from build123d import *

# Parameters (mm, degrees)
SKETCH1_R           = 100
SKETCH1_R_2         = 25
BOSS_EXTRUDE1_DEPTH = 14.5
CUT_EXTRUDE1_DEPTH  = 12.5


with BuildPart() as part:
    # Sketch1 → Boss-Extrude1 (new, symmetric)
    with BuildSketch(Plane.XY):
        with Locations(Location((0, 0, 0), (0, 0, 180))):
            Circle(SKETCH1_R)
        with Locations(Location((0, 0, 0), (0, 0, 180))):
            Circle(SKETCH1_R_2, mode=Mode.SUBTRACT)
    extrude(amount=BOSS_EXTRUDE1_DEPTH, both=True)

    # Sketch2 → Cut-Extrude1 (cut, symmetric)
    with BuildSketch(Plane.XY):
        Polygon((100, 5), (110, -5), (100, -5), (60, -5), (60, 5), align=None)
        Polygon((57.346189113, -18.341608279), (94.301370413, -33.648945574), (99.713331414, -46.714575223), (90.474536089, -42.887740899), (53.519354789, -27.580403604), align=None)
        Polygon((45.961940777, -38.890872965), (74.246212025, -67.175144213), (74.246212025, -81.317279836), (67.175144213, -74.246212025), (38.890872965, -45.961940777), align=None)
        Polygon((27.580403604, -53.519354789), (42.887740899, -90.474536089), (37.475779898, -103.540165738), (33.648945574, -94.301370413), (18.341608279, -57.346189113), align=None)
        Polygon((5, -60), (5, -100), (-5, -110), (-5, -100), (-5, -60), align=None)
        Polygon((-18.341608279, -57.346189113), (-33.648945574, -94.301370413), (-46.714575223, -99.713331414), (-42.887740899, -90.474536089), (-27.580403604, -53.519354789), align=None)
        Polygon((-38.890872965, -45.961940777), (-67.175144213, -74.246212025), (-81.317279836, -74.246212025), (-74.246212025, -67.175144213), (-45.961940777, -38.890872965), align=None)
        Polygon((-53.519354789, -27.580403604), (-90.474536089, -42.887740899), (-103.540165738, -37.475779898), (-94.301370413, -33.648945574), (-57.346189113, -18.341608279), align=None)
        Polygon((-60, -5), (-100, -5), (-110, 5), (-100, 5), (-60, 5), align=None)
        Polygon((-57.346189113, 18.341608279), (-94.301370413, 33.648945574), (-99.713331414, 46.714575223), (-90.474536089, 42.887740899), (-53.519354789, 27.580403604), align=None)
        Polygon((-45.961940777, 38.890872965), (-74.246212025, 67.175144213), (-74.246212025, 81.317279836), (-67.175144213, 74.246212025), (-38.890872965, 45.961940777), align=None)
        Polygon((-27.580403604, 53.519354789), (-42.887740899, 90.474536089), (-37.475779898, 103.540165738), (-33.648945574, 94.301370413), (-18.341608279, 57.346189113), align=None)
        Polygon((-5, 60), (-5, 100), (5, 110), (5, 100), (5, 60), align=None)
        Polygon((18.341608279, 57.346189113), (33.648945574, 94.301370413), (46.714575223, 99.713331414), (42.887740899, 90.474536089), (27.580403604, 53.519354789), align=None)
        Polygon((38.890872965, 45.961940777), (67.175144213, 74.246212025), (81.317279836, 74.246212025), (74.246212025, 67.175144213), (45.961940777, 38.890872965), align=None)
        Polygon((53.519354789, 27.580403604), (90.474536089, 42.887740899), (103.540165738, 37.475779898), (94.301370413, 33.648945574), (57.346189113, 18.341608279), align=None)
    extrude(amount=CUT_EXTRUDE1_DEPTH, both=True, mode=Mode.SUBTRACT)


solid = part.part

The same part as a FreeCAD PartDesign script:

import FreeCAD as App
import Part
import Sketcher
from FreeCAD import Vector
Q = App.Units.Quantity

doc = App.newDocument("Part")
body = doc.addObject("PartDesign::Body", "Body")

sketch1 = body.newObject("Sketcher::SketchObject", "Sketch")
sketch1.AttachmentSupport = (doc.getObject("XY_Plane"), [""])
sketch1.MapMode = "FlatFace"
sketch1.addGeometry(Part.Circle(Vector(0, 0, 0), Vector(0, 0, 1), 100), False)
sketch1.addGeometry(Part.Circle(Vector(0, 0, 0), Vector(0, 0, 1), 25), False)
sketch1.addConstraint(Sketcher.Constraint("Coincident", 0, 3, -1, 1))
sketch1.addConstraint(Sketcher.Constraint("Coincident", 1, 3, -1, 1))
sketch1.addConstraint(Sketcher.Constraint("Diameter", 0, Q("200 mm")))
sketch1.addConstraint(Sketcher.Constraint("Diameter", 1, Q("50 mm")))
pad1 = body.newObject("PartDesign::Pad", "Pad")
pad1.Profile = sketch1
pad1.Length = 29
pad1.Midplane = True

sketch2 = body.newObject("Sketcher::SketchObject", "Sketch001")
sketch2.AttachmentSupport = (doc.getObject("XY_Plane"), [""])
sketch2.MapMode = "FlatFace"
sketch2.addGeometry(Part.LineSegment(Vector(110, -5, 0), Vector(100, 5, 0)), False)
sketch2.addGeometry(Part.LineSegment(Vector(100, 5, 0), Vector(60, 5, 0)), False)
sketch2.addGeometry(Part.LineSegment(Vector(60, 5, 0), Vector(60, -5, 0)), False)
sketch2.addGeometry(Part.LineSegment(Vector(60, -5, 0), Vector(110, -5, 0)), False)
sketch2.addGeometry(Part.LineSegment(Vector(94, -34, 0), Vector(57, -18, 0)), False)
sketch2.addGeometry(Part.LineSegment(Vector(57, -18, 0), Vector(54, -28, 0)), False)
sketch2.addGeometry(Part.LineSegment(Vector(54, -28, 0), Vector(90, -43, 0)), False)
sketch2.addGeometry(Part.LineSegment(Vector(90, -43, 0), Vector(100, -47, 0)), False)
sketch2.addGeometry(Part.LineSegment(Vector(100, -47, 0), Vector(94, -34, 0)), False)
sketch2.addGeometry(Part.LineSegment(Vector(74, -67, 0), Vector(46, -39, 0)), False)
sketch2.addGeometry(Part.LineSegment(Vector(46, -39, 0), Vector(39, -46, 0)), False)
sketch2.addGeometry(Part.LineSegment(Vector(39, -46, 0), Vector(67, -74, 0)), False)
sketch2.addGeometry(Part.LineSegment(Vector(67, -74, 0), Vector(74, -81, 0)), False)
sketch2.addGeometry(Part.LineSegment(Vector(74, -81, 0), Vector(74, -67, 0)), False)
sketch2.addGeometry(Part.LineSegment(Vector(43, -90, 0), Vector(28, -54, 0)), False)
sketch2.addGeometry(Part.LineSegment(Vector(28, -54, 0), Vector(18, -57, 0)), False)
sketch2.addGeometry(Part.LineSegment(Vector(18, -57, 0), Vector(34, -94, 0)), False)
sketch2.addGeometry(Part.LineSegment(Vector(34, -94, 0), Vector(37, -104, 0)), False)
sketch2.addGeometry(Part.LineSegment(Vector(37, -104, 0), Vector(43, -90, 0)), False)
sketch2.addGeometry(Part.LineSegment(Vector(5, -100, 0), Vector(5, -60, 0)), False)
sketch2.addGeometry(Part.LineSegment(Vector(5, -60, 0), Vector(-5, -60, 0)), False)
sketch2.addGeometry(Part.LineSegment(Vector(-5, -60, 0), Vector(-5, -110, 0)), False)
sketch2.addGeometry(Part.LineSegment(Vector(-5, -110, 0), Vector(5, -100, 0)), False)
sketch2.addGeometry(Part.LineSegment(Vector(-34, -94, 0), Vector(-18, -57, 0)), False)
sketch2.addGeometry(Part.LineSegment(Vector(-18, -57, 0), Vector(-28, -54, 0)), False)
sketch2.addGeometry(Part.LineSegment(Vector(-28, -54, 0), Vector(-43, -90, 0)), False)
sketch2.addGeometry(Part.LineSegment(Vector(-43, -90, 0), Vector(-47, -100, 0)), False)
sketch2.addGeometry(Part.LineSegment(Vector(-47, -100, 0), Vector(-34, -94, 0)), False)
sketch2.addGeometry(Part.LineSegment(Vector(-67, -74, 0), Vector(-39, -46, 0)), False)
sketch2.addGeometry(Part.LineSegment(Vector(-39, -46, 0), Vector(-46, -39, 0)), False)
sketch2.addGeometry(Part.LineSegment(Vector(-46, -39, 0), Vector(-74, -67, 0)), False)
sketch2.addGeometry(Part.LineSegment(Vector(-74, -67, 0), Vector(-81, -74, 0)), False)
sketch2.addGeometry(Part.LineSegment(Vector(-81, -74, 0), Vector(-67, -74, 0)), False)
sketch2.addGeometry(Part.LineSegment(Vector(-90, -43, 0), Vector(-54, -28, 0)), False)
sketch2.addGeometry(Part.LineSegment(Vector(-54, -28, 0), Vector(-57, -18, 0)), False)
sketch2.addGeometry(Part.LineSegment(Vector(-57, -18, 0), Vector(-94, -34, 0)), False)
sketch2.addGeometry(Part.LineSegment(Vector(-94, -34, 0), Vector(-104, -37, 0)), False)
sketch2.addGeometry(Part.LineSegment(Vector(-104, -37, 0), Vector(-90, -43, 0)), False)
sketch2.addGeometry(Part.LineSegment(Vector(-100, -5, 0), Vector(-60, -5, 0)), False)
sketch2.addGeometry(Part.LineSegment(Vector(-60, -5, 0), Vector(-60, 5, 0)), False)
sketch2.addGeometry(Part.LineSegment(Vector(-60, 5, 0), Vector(-110, 5, 0)), False)
sketch2.addGeometry(Part.LineSegment(Vector(-110, 5, 0), Vector(-100, -5, 0)), False)
sketch2.addGeometry(Part.LineSegment(Vector(-94, 34, 0), Vector(-57, 18, 0)), False)
sketch2.addGeometry(Part.LineSegment(Vector(-57, 18, 0), Vector(-54, 28, 0)), False)
sketch2.addGeometry(Part.LineSegment(Vector(-54, 28, 0), Vector(-90, 43, 0)), False)
sketch2.addGeometry(Part.LineSegment(Vector(-90, 43, 0), Vector(-100, 47, 0)), False)
sketch2.addGeometry(Part.LineSegment(Vector(-100, 47, 0), Vector(-94, 34, 0)), False)
sketch2.addGeometry(Part.LineSegment(Vector(-74, 67, 0), Vector(-46, 39, 0)), False)
sketch2.addGeometry(Part.LineSegment(Vector(-46, 39, 0), Vector(-39, 46, 0)), False)
sketch2.addGeometry(Part.LineSegment(Vector(-39, 46, 0), Vector(-67, 74, 0)), False)
sketch2.addGeometry(Part.LineSegment(Vector(-67, 74, 0), Vector(-74, 81, 0)), False)
sketch2.addGeometry(Part.LineSegment(Vector(-74, 81, 0), Vector(-74, 67, 0)), False)
sketch2.addGeometry(Part.LineSegment(Vector(-43, 90, 0), Vector(-28, 54, 0)), False)
sketch2.addGeometry(Part.LineSegment(Vector(-28, 54, 0), Vector(-18, 57, 0)), False)
sketch2.addGeometry(Part.LineSegment(Vector(-18, 57, 0), Vector(-34, 94, 0)), False)
sketch2.addGeometry(Part.LineSegment(Vector(-34, 94, 0), Vector(-37, 104, 0)), False)
sketch2.addGeometry(Part.LineSegment(Vector(-37, 104, 0), Vector(-43, 90, 0)), False)
sketch2.addGeometry(Part.LineSegment(Vector(-5, 100, 0), Vector(-5, 60, 0)), False)
sketch2.addGeometry(Part.LineSegment(Vector(-5, 60, 0), Vector(5, 60, 0)), False)
sketch2.addGeometry(Part.LineSegment(Vector(5, 60, 0), Vector(5, 110, 0)), False)
sketch2.addGeometry(Part.LineSegment(Vector(5, 110, 0), Vector(-5, 100, 0)), False)
sketch2.addGeometry(Part.LineSegment(Vector(34, 94, 0), Vector(18, 57, 0)), False)
sketch2.addGeometry(Part.LineSegment(Vector(18, 57, 0), Vector(28, 54, 0)), False)
sketch2.addGeometry(Part.LineSegment(Vector(28, 54, 0), Vector(43, 90, 0)), False)
sketch2.addGeometry(Part.LineSegment(Vector(43, 90, 0), Vector(47, 100, 0)), False)
sketch2.addGeometry(Part.LineSegment(Vector(47, 100, 0), Vector(34, 94, 0)), False)
sketch2.addGeometry(Part.LineSegment(Vector(67, 74, 0), Vector(39, 46, 0)), False)
sketch2.addGeometry(Part.LineSegment(Vector(39, 46, 0), Vector(46, 39, 0)), False)
sketch2.addGeometry(Part.LineSegment(Vector(46, 39, 0), Vector(74, 67, 0)), False)
sketch2.addGeometry(Part.LineSegment(Vector(74, 67, 0), Vector(81, 74, 0)), False)
sketch2.addGeometry(Part.LineSegment(Vector(81, 74, 0), Vector(67, 74, 0)), False)
sketch2.addGeometry(Part.LineSegment(Vector(90, 43, 0), Vector(54, 28, 0)), False)
sketch2.addGeometry(Part.LineSegment(Vector(54, 28, 0), Vector(57, 18, 0)), False)
sketch2.addGeometry(Part.LineSegment(Vector(57, 18, 0), Vector(94, 34, 0)), False)
sketch2.addGeometry(Part.LineSegment(Vector(94, 34, 0), Vector(104, 37, 0)), False)
sketch2.addGeometry(Part.LineSegment(Vector(104, 37, 0), Vector(90, 43, 0)), False)
sketch2.addConstraint(Sketcher.Constraint("Coincident", 0, 2, 1, 1))
sketch2.addConstraint(Sketcher.Constraint("Coincident", 1, 2, 2, 1))
sketch2.addConstraint(Sketcher.Constraint("Coincident", 2, 2, 3, 1))
sketch2.addConstraint(Sketcher.Constraint("Coincident", 3, 2, 0, 1))
sketch2.addConstraint(Sketcher.Constraint("Coincident", 4, 2, 5, 1))
sketch2.addConstraint(Sketcher.Constraint("Coincident", 5, 2, 6, 1))
sketch2.addConstraint(Sketcher.Constraint("Coincident", 6, 2, 7, 1))
sketch2.addConstraint(Sketcher.Constraint("Coincident", 7, 2, 8, 1))
sketch2.addConstraint(Sketcher.Constraint("Coincident", 8, 2, 4, 1))
sketch2.addConstraint(Sketcher.Constraint("Coincident", 9, 2, 10, 1))
sketch2.addConstraint(Sketcher.Constraint("Coincident", 10, 2, 11, 1))
sketch2.addConstraint(Sketcher.Constraint("Coincident", 11, 2, 12, 1))
sketch2.addConstraint(Sketcher.Constraint("Coincident", 12, 2, 13, 1))
sketch2.addConstraint(Sketcher.Constraint("Coincident", 13, 2, 9, 1))
sketch2.addConstraint(Sketcher.Constraint("Coincident", 14, 2, 15, 1))
sketch2.addConstraint(Sketcher.Constraint("Coincident", 15, 2, 16, 1))
sketch2.addConstraint(Sketcher.Constraint("Coincident", 16, 2, 17, 1))
sketch2.addConstraint(Sketcher.Constraint("Coincident", 17, 2, 18, 1))
sketch2.addConstraint(Sketcher.Constraint("Coincident", 18, 2, 14, 1))
sketch2.addConstraint(Sketcher.Constraint("Coincident", 19, 2, 20, 1))
sketch2.addConstraint(Sketcher.Constraint("Coincident", 20, 2, 21, 1))
sketch2.addConstraint(Sketcher.Constraint("Coincident", 21, 2, 22, 1))
sketch2.addConstraint(Sketcher.Constraint("Coincident", 22, 2, 19, 1))
sketch2.addConstraint(Sketcher.Constraint("Coincident", 23, 2, 24, 1))
sketch2.addConstraint(Sketcher.Constraint("Coincident", 24, 2, 25, 1))
sketch2.addConstraint(Sketcher.Constraint("Coincident", 25, 2, 26, 1))
sketch2.addConstraint(Sketcher.Constraint("Coincident", 26, 2, 27, 1))
sketch2.addConstraint(Sketcher.Constraint("Coincident", 27, 2, 23, 1))
sketch2.addConstraint(Sketcher.Constraint("Coincident", 28, 2, 29, 1))
sketch2.addConstraint(Sketcher.Constraint("Coincident", 29, 2, 30, 1))
sketch2.addConstraint(Sketcher.Constraint("Coincident", 30, 2, 31, 1))
sketch2.addConstraint(Sketcher.Constraint("Coincident", 31, 2, 32, 1))
sketch2.addConstraint(Sketcher.Constraint("Coincident", 32, 2, 28, 1))
sketch2.addConstraint(Sketcher.Constraint("Coincident", 33, 2, 34, 1))
sketch2.addConstraint(Sketcher.Constraint("Coincident", 34, 2, 35, 1))
sketch2.addConstraint(Sketcher.Constraint("Coincident", 35, 2, 36, 1))
sketch2.addConstraint(Sketcher.Constraint("Coincident", 36, 2, 37, 1))
sketch2.addConstraint(Sketcher.Constraint("Coincident", 37, 2, 33, 1))
sketch2.addConstraint(Sketcher.Constraint("Coincident", 38, 2, 39, 1))
sketch2.addConstraint(Sketcher.Constraint("Coincident", 39, 2, 40, 1))
sketch2.addConstraint(Sketcher.Constraint("Coincident", 40, 2, 41, 1))
sketch2.addConstraint(Sketcher.Constraint("Coincident", 41, 2, 38, 1))
sketch2.addConstraint(Sketcher.Constraint("Coincident", 42, 2, 43, 1))
sketch2.addConstraint(Sketcher.Constraint("Coincident", 43, 2, 44, 1))
sketch2.addConstraint(Sketcher.Constraint("Coincident", 44, 2, 45, 1))
sketch2.addConstraint(Sketcher.Constraint("Coincident", 45, 2, 46, 1))
sketch2.addConstraint(Sketcher.Constraint("Coincident", 46, 2, 42, 1))
sketch2.addConstraint(Sketcher.Constraint("Coincident", 47, 2, 48, 1))
sketch2.addConstraint(Sketcher.Constraint("Coincident", 48, 2, 49, 1))
sketch2.addConstraint(Sketcher.Constraint("Coincident", 49, 2, 50, 1))
sketch2.addConstraint(Sketcher.Constraint("Coincident", 50, 2, 51, 1))
sketch2.addConstraint(Sketcher.Constraint("Coincident", 51, 2, 47, 1))
sketch2.addConstraint(Sketcher.Constraint("Coincident", 52, 2, 53, 1))
sketch2.addConstraint(Sketcher.Constraint("Coincident", 53, 2, 54, 1))
sketch2.addConstraint(Sketcher.Constraint("Coincident", 54, 2, 55, 1))
sketch2.addConstraint(Sketcher.Constraint("Coincident", 55, 2, 56, 1))
sketch2.addConstraint(Sketcher.Constraint("Coincident", 56, 2, 52, 1))
sketch2.addConstraint(Sketcher.Constraint("Coincident", 57, 2, 58, 1))
sketch2.addConstraint(Sketcher.Constraint("Coincident", 58, 2, 59, 1))
sketch2.addConstraint(Sketcher.Constraint("Coincident", 59, 2, 60, 1))
sketch2.addConstraint(Sketcher.Constraint("Coincident", 60, 2, 57, 1))
sketch2.addConstraint(Sketcher.Constraint("Coincident", 61, 2, 62, 1))
sketch2.addConstraint(Sketcher.Constraint("Coincident", 62, 2, 63, 1))
sketch2.addConstraint(Sketcher.Constraint("Coincident", 63, 2, 64, 1))
sketch2.addConstraint(Sketcher.Constraint("Coincident", 64, 2, 65, 1))
sketch2.addConstraint(Sketcher.Constraint("Coincident", 65, 2, 61, 1))
sketch2.addConstraint(Sketcher.Constraint("Coincident", 66, 2, 67, 1))
sketch2.addConstraint(Sketcher.Constraint("Coincident", 67, 2, 68, 1))
sketch2.addConstraint(Sketcher.Constraint("Coincident", 68, 2, 69, 1))
sketch2.addConstraint(Sketcher.Constraint("Coincident", 69, 2, 70, 1))
sketch2.addConstraint(Sketcher.Constraint("Coincident", 70, 2, 66, 1))
sketch2.addConstraint(Sketcher.Constraint("Coincident", 71, 2, 72, 1))
sketch2.addConstraint(Sketcher.Constraint("Coincident", 72, 2, 73, 1))
sketch2.addConstraint(Sketcher.Constraint("Coincident", 73, 2, 74, 1))
sketch2.addConstraint(Sketcher.Constraint("Coincident", 74, 2, 75, 1))
sketch2.addConstraint(Sketcher.Constraint("Coincident", 75, 2, 71, 1))
sketch2.addConstraint(Sketcher.Constraint("Horizontal", 1))
sketch2.addConstraint(Sketcher.Constraint("Vertical", 2))
sketch2.addConstraint(Sketcher.Constraint("Horizontal", 3))
sketch2.addConstraint(Sketcher.Constraint("Vertical", 13))
sketch2.addConstraint(Sketcher.Constraint("Vertical", 19))
sketch2.addConstraint(Sketcher.Constraint("Horizontal", 20))
sketch2.addConstraint(Sketcher.Constraint("Vertical", 21))
sketch2.addConstraint(Sketcher.Constraint("Horizontal", 32))
sketch2.addConstraint(Sketcher.Constraint("Horizontal", 38))
sketch2.addConstraint(Sketcher.Constraint("Vertical", 39))
sketch2.addConstraint(Sketcher.Constraint("Horizontal", 40))
sketch2.addConstraint(Sketcher.Constraint("Vertical", 51))
sketch2.addConstraint(Sketcher.Constraint("Vertical", 57))
sketch2.addConstraint(Sketcher.Constraint("Horizontal", 58))
sketch2.addConstraint(Sketcher.Constraint("Vertical", 59))
sketch2.addConstraint(Sketcher.Constraint("Horizontal", 70))
sketch2.addConstraint(Sketcher.Constraint("Symmetric", 1, 2, 38, 2, -1, 1))
sketch2.addConstraint(Sketcher.Constraint("Symmetric", 3, 2, 40, 2, -1, 1))
sketch2.addConstraint(Sketcher.Constraint("Symmetric", 4, 2, 42, 2, -1, 1))
sketch2.addConstraint(Sketcher.Constraint("Symmetric", 5, 2, 43, 2, -1, 1))
sketch2.addConstraint(Sketcher.Constraint("Symmetric", 6, 2, 44, 2, -1, 1))
sketch2.addConstraint(Sketcher.Constraint("Symmetric", 7, 2, 45, 2, -1, 1))
sketch2.addConstraint(Sketcher.Constraint("Symmetric", 8, 2, 46, 2, -1, 1))
sketch2.addConstraint(Sketcher.Constraint("Symmetric", 9, 2, 47, 2, -1, 1))
sketch2.addConstraint(Sketcher.Constraint("Symmetric", 10, 2, 48, 2, -1, 1))
sketch2.addConstraint(Sketcher.Constraint("Symmetric", 11, 2, 49, 2, -1, 1))
sketch2.addConstraint(Sketcher.Constraint("Symmetric", 12, 2, 50, 2, -1, 1))
sketch2.addConstraint(Sketcher.Constraint("Symmetric", 14, 2, 52, 2, -1, 1))
sketch2.addConstraint(Sketcher.Constraint("Symmetric", 15, 2, 53, 2, -1, 1))
sketch2.addConstraint(Sketcher.Constraint("Symmetric", 16, 2, 54, 2, -1, 1))
sketch2.addConstraint(Sketcher.Constraint("Symmetric", 17, 2, 55, 2, -1, 1))
sketch2.addConstraint(Sketcher.Constraint("Symmetric", 18, 2, 56, 2, -1, 1))
sketch2.addConstraint(Sketcher.Constraint("Symmetric", 19, 2, 57, 2, -1, 1))
sketch2.addConstraint(Sketcher.Constraint("Symmetric", 21, 2, 59, 2, -1, 1))
sketch2.addConstraint(Sketcher.Constraint("Symmetric", 23, 2, 61, 2, -1, 1))
sketch2.addConstraint(Sketcher.Constraint("Symmetric", 24, 2, 62, 2, -1, 1))
sketch2.addConstraint(Sketcher.Constraint("Symmetric", 25, 2, 63, 2, -1, 1))
sketch2.addConstraint(Sketcher.Constraint("Symmetric", 26, 2, 64, 2, -1, 1))
sketch2.addConstraint(Sketcher.Constraint("Symmetric", 27, 2, 65, 2, -1, 1))
sketch2.addConstraint(Sketcher.Constraint("Symmetric", 28, 2, 66, 2, -1, 1))
sketch2.addConstraint(Sketcher.Constraint("Symmetric", 29, 2, 67, 2, -1, 1))
sketch2.addConstraint(Sketcher.Constraint("Symmetric", 30, 2, 68, 2, -1, 1))
sketch2.addConstraint(Sketcher.Constraint("Symmetric", 31, 2, 69, 2, -1, 1))
sketch2.addConstraint(Sketcher.Constraint("Symmetric", 33, 2, 71, 2, -1, 1))
sketch2.addConstraint(Sketcher.Constraint("Symmetric", 34, 2, 72, 2, -1, 1))
sketch2.addConstraint(Sketcher.Constraint("Symmetric", 35, 2, 73, 2, -1, 1))
sketch2.addConstraint(Sketcher.Constraint("Symmetric", 36, 2, 74, 2, -1, 1))
sketch2.addConstraint(Sketcher.Constraint("Symmetric", 37, 2, 75, 2, -1, 1))
sketch2.addConstraint(Sketcher.Constraint("Symmetric", 15, 2, 23, 2, -2))
sketch2.addConstraint(Sketcher.Constraint("Symmetric", 14, 2, 24, 2, -2))
sketch2.addConstraint(Sketcher.Constraint("Symmetric", 18, 2, 25, 2, -2))
sketch2.addConstraint(Sketcher.Constraint("Symmetric", 16, 2, 27, 2, -2))
sketch2.addConstraint(Sketcher.Constraint("Symmetric", 10, 2, 28, 2, -2))
sketch2.addConstraint(Sketcher.Constraint("Symmetric", 9, 2, 29, 2, -2))
sketch2.addConstraint(Sketcher.Constraint("Symmetric", 13, 2, 30, 2, -2))
sketch2.addConstraint(Sketcher.Constraint("Symmetric", 11, 2, 32, 2, -2))
sketch2.addConstraint(Sketcher.Constraint("Symmetric", 5, 2, 33, 2, -2))
sketch2.addConstraint(Sketcher.Constraint("Symmetric", 4, 2, 34, 2, -2))
sketch2.addConstraint(Sketcher.Constraint("Symmetric", 8, 2, 35, 2, -2))
sketch2.addConstraint(Sketcher.Constraint("Symmetric", 6, 2, 37, 2, -2))
sketch2.addConstraint(Sketcher.Constraint("Perpendicular", 4, 5))
sketch2.addConstraint(Sketcher.Constraint("Perpendicular", 5, 6))
sketch2.addConstraint(Sketcher.Constraint("Parallel", 6, 7))
sketch2.addConstraint(Sketcher.Constraint("Parallel", 0, 9))
sketch2.addConstraint(Sketcher.Constraint("Perpendicular", 9, 10))
sketch2.addConstraint(Sketcher.Constraint("Perpendicular", 10, 11))
sketch2.addConstraint(Sketcher.Constraint("Parallel", 11, 12))
sketch2.addConstraint(Sketcher.Constraint("Parallel", 8, 14))
sketch2.addConstraint(Sketcher.Constraint("Perpendicular", 14, 15))
sketch2.addConstraint(Sketcher.Constraint("Perpendicular", 15, 16))
sketch2.addConstraint(Sketcher.Constraint("Parallel", 16, 17))
sketch2.addConstraint(Sketcher.Constraint("Perpendicular", 7, 18))
sketch2.addConstraint(Sketcher.Constraint("Perpendicular", 12, 22))
sketch2.addConstraint(Sketcher.Constraint("Parallel", 18, 23))
sketch2.addConstraint(Sketcher.Constraint("Parallel", 25, 26))
sketch2.addConstraint(Sketcher.Constraint("Perpendicular", 17, 27))
sketch2.addConstraint(Sketcher.Constraint("Parallel", 22, 28))
sketch2.addConstraint(Sketcher.Constraint("Parallel", 30, 31))
sketch2.addConstraint(Sketcher.Constraint("Parallel", 35, 36))
sketch2.addConstraint(Sketcher.Constraint("Perpendicular", 26, 37))
sketch2.addConstraint(Sketcher.Constraint("Perpendicular", 31, 41))
sketch2.addConstraint(Sketcher.Constraint("Parallel", 41, 47))
sketch2.addConstraint(Sketcher.Constraint("Perpendicular", 50, 60))
sketch2.addConstraint(Sketcher.Constraint("Parallel", 60, 66))
sketch2.addConstraint(Sketcher.Constraint("Horizontal", 3, 2, 38, 2))
sketch2.addConstraint(Sketcher.Constraint("Vertical", 21, 2, 57, 2))
sketch2.addConstraint(Sketcher.Constraint("Equal", 58, 2))
sketch2.addConstraint(Sketcher.Constraint("Equal", 38, 19))
sketch2.addConstraint(Sketcher.Constraint("Equal", 4, 6))
sketch2.addConstraint(Sketcher.Constraint("Equal", 5, 7))
sketch2.addConstraint(Sketcher.Constraint("Equal", 0, 8))
sketch2.addConstraint(Sketcher.Constraint("Equal", 6, 9))
sketch2.addConstraint(Sketcher.Constraint("Equal", 7, 10))
sketch2.addConstraint(Sketcher.Constraint("Equal", 9, 11))
sketch2.addConstraint(Sketcher.Constraint("Equal", 11, 14))
sketch2.addConstraint(Sketcher.Constraint("Equal", 12, 15))
sketch2.addConstraint(Sketcher.Constraint("Equal", 14, 16))
sketch2.addConstraint(Sketcher.Constraint("DistanceX", 1, 2, 1, 1, Q("40 mm")))
sketch2.addConstraint(Sketcher.Constraint("DistanceX", 3, 1, 3, 2, Q("50 mm")))
sketch2.addConstraint(Sketcher.Constraint("Distance", 4, Q("40 mm")))
sketch2.addConstraint(Sketcher.Constraint("DistanceX", -1, 1, 0, 2, Q("100 mm")))
sketch2.addConstraint(Sketcher.Constraint("DistanceY", 19, 2, -1, 1, Q("60 mm")))
sketch2.addConstraint(Sketcher.Constraint("DistanceX", -1, 1, 4, 2, Q("57.346189 mm")))
sketch2.addConstraint(Sketcher.Constraint("DistanceY", 4, 2, -1, 1, Q("18.341608 mm")))
sketch2.addConstraint(Sketcher.Constraint("DistanceX", -1, 1, 9, 2, Q("45.961941 mm")))
sketch2.addConstraint(Sketcher.Constraint("DistanceY", 10, 2, -1, 1, Q("45.961941 mm")))
sketch2.addConstraint(Sketcher.Constraint("DistanceX", -1, 1, 15, 2, Q("18.341608 mm")))
sketch2.addConstraint(Sketcher.Constraint("DistanceY", 15, 2, -1, 1, Q("57.346189 mm")))
pocket1 = body.newObject("PartDesign::Pocket", "Pocket")
pocket1.Profile = sketch2
pocket1.Length = 25
pocket1.Midplane = True

doc.recompute()
